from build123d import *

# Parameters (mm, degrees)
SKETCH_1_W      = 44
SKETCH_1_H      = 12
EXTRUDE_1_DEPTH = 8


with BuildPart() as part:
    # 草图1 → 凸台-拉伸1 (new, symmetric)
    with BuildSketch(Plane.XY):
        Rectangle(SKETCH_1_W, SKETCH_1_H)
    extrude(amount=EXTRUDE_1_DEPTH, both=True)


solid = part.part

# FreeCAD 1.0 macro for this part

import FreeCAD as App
import Part
import Sketcher

V = App.Vector

doc = App.newDocument("Part")
params = doc.addObject("Spreadsheet::Sheet", "Params")
for row, (alias, value) in enumerate([
    ("sketch1_width", "44 mm"),
    ("sketch1_height", "12 mm"),
    ("pad1_length", "16 mm"),
], start=1):
    params.set(f"A{row}", alias)
    params.set(f"B{row}", "=" + value)
    params.setAlias(f"B{row}", alias)

body = doc.addObject("PartDesign::Body", "Body")

# Sketch on XY plane
sketch1 = doc.addObject("Sketcher::SketchObject", "Sketch")
body.addObject(sketch1)
sketch1.AttachmentSupport = (doc.XY_Plane, [""])
sketch1.MapMode = "FlatFace"
sketch1.addGeometry([
    Part.LineSegment(V(-22, 6, 0), V(-22, -6, 0)),
    Part.LineSegment(V(-22, -6, 0), V(22, -6, 0)),
    Part.LineSegment(V(22, -6, 0), V(22, 6, 0)),
    Part.LineSegment(V(22, 6, 0), V(-22, 6, 0)),
], False)
sketch1.addConstraint([
    Sketcher.Constraint("Coincident", 0, 2, 1, 1),
    Sketcher.Constraint("Coincident", 1, 2, 2, 1),
    Sketcher.Constraint("Coincident", 2, 2, 3, 1),
    Sketcher.Constraint("Coincident", 3, 2, 0, 1),
    Sketcher.Constraint("Vertical", 0),
    Sketcher.Constraint("Horizontal", 1),
    Sketcher.Constraint("Vertical", 2),
    Sketcher.Constraint("Horizontal", 3),
    Sketcher.Constraint("Symmetric", 0, 2, 2, 2, -1, 1),
    Sketcher.Constraint("DistanceX", 1, 1, 1, 2, 44.0),
    Sketcher.Constraint("DistanceY", 0, 2, 0, 1, 12.0),
])
sketch1.setExpression("Constraints[9]", "Params.sketch1_width")
sketch1.setExpression("Constraints[10]", "Params.sketch1_height")
pad1 = doc.addObject("PartDesign::Pad", "Pad")
body.addObject(pad1)
pad1.Profile = sketch1
pad1.setExpression("Length", "Params.pad1_length")
pad1.Midplane = True

doc.recompute()
